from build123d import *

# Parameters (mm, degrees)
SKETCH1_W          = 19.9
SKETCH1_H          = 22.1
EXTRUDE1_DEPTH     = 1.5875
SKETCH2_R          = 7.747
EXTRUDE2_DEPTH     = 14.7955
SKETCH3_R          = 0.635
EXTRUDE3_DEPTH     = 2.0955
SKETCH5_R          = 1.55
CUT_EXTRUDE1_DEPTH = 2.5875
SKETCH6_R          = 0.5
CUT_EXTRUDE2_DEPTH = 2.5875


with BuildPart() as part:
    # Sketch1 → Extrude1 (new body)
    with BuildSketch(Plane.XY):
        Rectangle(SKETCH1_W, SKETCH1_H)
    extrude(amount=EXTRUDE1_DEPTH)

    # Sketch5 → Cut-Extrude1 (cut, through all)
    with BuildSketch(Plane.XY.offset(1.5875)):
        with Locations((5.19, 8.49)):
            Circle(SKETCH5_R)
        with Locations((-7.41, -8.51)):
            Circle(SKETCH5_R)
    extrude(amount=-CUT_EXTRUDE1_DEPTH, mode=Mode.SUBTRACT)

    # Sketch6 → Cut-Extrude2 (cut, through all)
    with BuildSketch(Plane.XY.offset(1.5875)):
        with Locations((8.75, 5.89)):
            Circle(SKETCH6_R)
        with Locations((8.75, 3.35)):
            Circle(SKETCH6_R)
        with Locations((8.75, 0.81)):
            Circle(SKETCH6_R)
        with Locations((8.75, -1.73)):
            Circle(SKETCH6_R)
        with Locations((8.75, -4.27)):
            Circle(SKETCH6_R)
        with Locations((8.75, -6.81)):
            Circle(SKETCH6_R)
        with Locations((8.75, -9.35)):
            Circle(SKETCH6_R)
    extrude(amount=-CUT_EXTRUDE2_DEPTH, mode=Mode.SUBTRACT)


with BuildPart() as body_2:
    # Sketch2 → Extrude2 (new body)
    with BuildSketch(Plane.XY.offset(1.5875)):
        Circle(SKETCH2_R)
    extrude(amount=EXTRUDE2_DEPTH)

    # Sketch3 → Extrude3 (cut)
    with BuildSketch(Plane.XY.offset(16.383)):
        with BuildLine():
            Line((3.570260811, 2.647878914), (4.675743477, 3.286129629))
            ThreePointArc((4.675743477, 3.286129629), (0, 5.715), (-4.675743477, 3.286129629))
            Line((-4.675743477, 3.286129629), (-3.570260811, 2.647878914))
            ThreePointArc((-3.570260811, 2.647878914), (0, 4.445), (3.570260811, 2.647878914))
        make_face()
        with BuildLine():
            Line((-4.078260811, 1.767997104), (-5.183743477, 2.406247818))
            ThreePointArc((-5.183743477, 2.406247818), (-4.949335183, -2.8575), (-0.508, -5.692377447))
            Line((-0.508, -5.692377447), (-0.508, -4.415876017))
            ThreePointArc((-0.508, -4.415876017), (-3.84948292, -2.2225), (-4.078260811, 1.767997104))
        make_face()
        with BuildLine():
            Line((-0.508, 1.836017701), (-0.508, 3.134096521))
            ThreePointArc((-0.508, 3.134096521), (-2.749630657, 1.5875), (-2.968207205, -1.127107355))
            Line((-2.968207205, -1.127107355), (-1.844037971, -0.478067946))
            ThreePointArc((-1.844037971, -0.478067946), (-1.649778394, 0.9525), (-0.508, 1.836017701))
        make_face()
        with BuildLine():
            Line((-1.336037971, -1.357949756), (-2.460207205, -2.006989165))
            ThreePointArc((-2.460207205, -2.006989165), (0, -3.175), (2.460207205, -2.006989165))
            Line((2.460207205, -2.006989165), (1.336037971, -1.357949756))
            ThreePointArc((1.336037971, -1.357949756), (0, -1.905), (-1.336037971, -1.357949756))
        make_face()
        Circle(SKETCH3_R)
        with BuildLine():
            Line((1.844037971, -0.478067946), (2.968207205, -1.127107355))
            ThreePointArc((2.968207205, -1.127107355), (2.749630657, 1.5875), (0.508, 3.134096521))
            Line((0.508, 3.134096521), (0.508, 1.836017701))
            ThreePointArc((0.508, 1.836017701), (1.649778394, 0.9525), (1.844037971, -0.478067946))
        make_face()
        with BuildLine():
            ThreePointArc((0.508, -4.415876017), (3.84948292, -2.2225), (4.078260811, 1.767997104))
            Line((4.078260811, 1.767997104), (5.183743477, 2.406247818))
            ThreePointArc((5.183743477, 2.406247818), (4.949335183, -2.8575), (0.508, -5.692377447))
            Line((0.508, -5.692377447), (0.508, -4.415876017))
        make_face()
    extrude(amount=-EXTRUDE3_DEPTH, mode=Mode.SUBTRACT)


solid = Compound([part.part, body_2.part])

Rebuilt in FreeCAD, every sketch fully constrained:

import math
import FreeCAD as App
import Part
import Sketcher
Q = App.Units.Quantity

doc = App.newDocument("Part")
body = doc.addObject("PartDesign::Body", "Body")

# Sketch on XY plane
sketch1 = body.newObject("Sketcher::SketchObject", "Sketch")
sketch1.AttachmentSupport = (doc.getObject("XY_Plane"), [""])
sketch1.MapMode = "FlatFace"
sketch1.addGeometry([
    Part.LineSegment(App.Vector(-9.95, 11.05, 0), App.Vector(-9.95, -11.05, 0)),
    Part.LineSegment(App.Vector(-9.95, -11.05, 0), App.Vector(9.95, -11.05, 0)),
    Part.LineSegment(App.Vector(9.95, -11.05, 0), App.Vector(9.95, 11.05, 0)),
    Part.LineSegment(App.Vector(9.95, 11.05, 0), App.Vector(-9.95, 11.05, 0)),
], False)
sketch1.addConstraint([
    Sketcher.Constraint("Coincident", 0, 2, 1, 1),
    Sketcher.Constraint("Coincident", 1, 2, 2, 1),
    Sketcher.Constraint("Coincident", 2, 2, 3, 1),
    Sketcher.Constraint("Coincident", 3, 2, 0, 1),
    Sketcher.Constraint("Vertical", 0),
    Sketcher.Constraint("Horizontal", 1),
    Sketcher.Constraint("Vertical", 2),
    Sketcher.Constraint("Horizontal", 3),
    Sketcher.Constraint("Symmetric", 0, 2, 2, 2, -1, 1),
    Sketcher.Constraint("DistanceX", 1, 1, 1, 2, 19.9),
    Sketcher.Constraint("DistanceY", 0, 2, 0, 1, 22.1),
])
pad1 = body.newObject("PartDesign::Pad", "Pad")
pad1.Profile = sketch1
pad1.Length = Q("0.0625 in")

# Sketch on XY plane
sketch2 = body.newObject("Sketcher::SketchObject", "Sketch001")
sketch2.AttachmentSupport = (doc.getObject("XY_Plane"), [""])
sketch2.MapMode = "FlatFace"
sketch2.AttachmentOffset = App.Placement(App.Vector(0, 0, 0.0625 * 25.4), App.Rotation())
sketch2.addGeometry([
    Part.Circle(App.Vector(5.19, 8.49, 0), App.Vector(0, 0, 1), 1.55),
    Part.Circle(App.Vector(-7.41, -8.51, 0), App.Vector(0, 0, 1), 1.55),
], False)
sketch2.addConstraint([
    Sketcher.Constraint("Equal", 0, 1),
    Sketcher.Constraint("Diameter", 0, 3.1),
    Sketcher.Constraint("DistanceX", -1, 1, 0, 3, 5.19),
    Sketcher.Constraint("DistanceY", -1, 1, 0, 3, 8.49),
    Sketcher.Constraint("DistanceX", 1, 3, -1, 1, 7.41),
    Sketcher.Constraint("DistanceY", 1, 3, -1, 1, 8.51),
])
pocket1 = body.newObject("PartDesign::Pocket", "Pocket")
pocket1.Profile = sketch2
pocket1.Type = "ThroughAll"

# Sketch on XY plane
sketch3 = body.newObject("Sketcher::SketchObject", "Sketch002")
sketch3.AttachmentSupport = (doc.getObject("XY_Plane"), [""])
sketch3.MapMode = "FlatFace"
sketch3.AttachmentOffset = App.Placement(App.Vector(0, 0, 0.0625 * 25.4), App.Rotation())
sketch3.addGeometry([
    Part.Circle(App.Vector(8.75, 5.89, 0), App.Vector(0, 0, 1), 0.5),  # 0
    Part.Circle(App.Vector(8.75, 3.35, 0), App.Vector(0, 0, 1), 0.5),  # 1
    Part.Circle(App.Vector(8.75, 0.81, 0), App.Vector(0, 0, 1), 0.5),  # 2
    Part.Circle(App.Vector(8.75, -1.73, 0), App.Vector(0, 0, 1), 0.5),  # 3
    Part.Circle(App.Vector(8.75, -4.27, 0), App.Vector(0, 0, 1), 0.5),  # 4
    Part.Circle(App.Vector(8.75, -6.81, 0), App.Vector(0, 0, 1), 0.5),  # 5
    Part.Circle(App.Vector(8.75, -9.35, 0), App.Vector(0, 0, 1), 0.5),  # 6
], False)
sketch3.addConstraint([
    Sketcher.Constraint("Equal", 0, 1),
    Sketcher.Constraint("Equal", 1, 2),
    Sketcher.Constraint("Equal", 2, 3),
    Sketcher.Constraint("Equal", 3, 4),
    Sketcher.Constraint("Equal", 4, 5),
    Sketcher.Constraint("Equal", 5, 6),
    Sketcher.Constraint("Vertical", 0, 3, 1, 3),
    Sketcher.Constraint("Vertical", 1, 3, 2, 3),
    Sketcher.Constraint("Vertical", 2, 3, 3, 3),
    Sketcher.Constraint("Vertical", 3, 3, 4, 3),
    Sketcher.Constraint("Vertical", 4, 3, 5, 3),
    Sketcher.Constraint("Vertical", 5, 3, 6, 3),
    Sketcher.Constraint("DistanceY", 1, 3, 0, 3, Q("0.1 in")),
    Sketcher.Constraint("DistanceY", 2, 3, 1, 3, Q("0.1 in")),
    Sketcher.Constraint("DistanceY", 3, 3, 2, 3, Q("0.1 in")),
    Sketcher.Constraint("DistanceY", 4, 3, 3, 3, Q("0.1 in")),
    Sketcher.Constraint("DistanceY", 5, 3, 4, 3, Q("0.1 in")),
    Sketcher.Constraint("DistanceY", 6, 3, 5, 3, Q("0.1 in")),
    Sketcher.Constraint("Diameter", 0, 1.0),
    Sketcher.Constraint("DistanceX", -1, 1, 0, 3, 8.75),
    Sketcher.Constraint("DistanceY", -1, 1, 0, 3, 5.89),
])
pocket2 = body.newObject("PartDesign::Pocket", "Pocket001")
pocket2.Profile = sketch3
pocket2.Type = "ThroughAll"
body2 = doc.addObject("PartDesign::Body", "Body001")

# Sketch on XY plane
sketch4 = body2.newObject("Sketcher::SketchObject", "Sketch003")
sketch4.AttachmentSupport = (doc.getObject("XY_Plane001"), [""])
sketch4.MapMode = "FlatFace"
sketch4.AttachmentOffset = App.Placement(App.Vector(0, 0, 0.0625 * 25.4), App.Rotation())
sketch4.addGeometry(Part.Circle(App.Vector(0, 0, 0), App.Vector(0, 0, 1), 7.747), False)
sketch4.addConstraint([
    Sketcher.Constraint("Coincident", 0, 3, -1, 1),
    Sketcher.Constraint("Diameter", 0, Q("0.61 in")),
])
pad2 = body2.newObject("PartDesign::Pad", "Pad001")
pad2.Profile = sketch4
pad2.Length = Q("0.5825 in")

# Sketch on XY plane
sketch5 = body2.newObject("Sketcher::SketchObject", "Sketch004")
sketch5.AttachmentSupport = (doc.getObject("XY_Plane001"), [""])
sketch5.MapMode = "FlatFace"
sketch5.AttachmentOffset = App.Placement(App.Vector(0, 0, 0.645 * 25.4), App.Rotation())
sketch5.addGeometry([
    Part.LineSegment(App.Vector(3.570261, 2.647879, 0), App.Vector(4.675743, 3.28613, 0)),  # 0
    Part.ArcOfCircle(Part.Circle(App.Vector(0, 0, 0), App.Vector(0, 0, 1), 5.715), math.radians(35.099689), math.radians(144.900311)),  # 1
    Part.LineSegment(App.Vector(-4.675743, 3.28613, 0), App.Vector(-3.570261, 2.647879, 0)),  # 2
    Part.ArcOfCircle(Part.Circle(App.Vector(0, 0, 0), App.Vector(0, 0, 1), 4.445), math.radians(36.562428), math.radians(143.437572)),  # 3
    Part.LineSegment(App.Vector(-4.078261, 1.767997, 0), App.Vector(-5.183743, 2.406248, 0)),  # 4
    Part.ArcOfCircle(Part.Circle(App.Vector(0, 0, 0), App.Vector(0, 0, 1), 5.715), math.radians(155.099689), math.radians(264.900311)),  # 5
    Part.LineSegment(App.Vector(-0.508, -5.692377, 0), App.Vector(-0.508, -4.415876, 0)),  # 6
    Part.ArcOfCircle(Part.Circle(App.Vector(0, 0, 0), App.Vector(0, 0, 1), 4.445), math.radians(156.562428), math.radians(263.437572)),  # 7
    Part.LineSegment(App.Vector(-0.508, 1.836018, 0), App.Vector(-0.508, 3.134097, 0)),  # 8
    Part.ArcOfCircle(Part.Circle(App.Vector(0, 0, 0), App.Vector(0, 0, 1), 3.175), math.radians(99.206896), math.radians(200.793104)),  # 9
    Part.LineSegment(App.Vector(-2.968207, -1.127107, 0), App.Vector(-1.844038, -0.478068, 0)),  # 10
    Part.ArcOfCircle(Part.Circle(App.Vector(0, 0, 0), App.Vector(0, 0, 1), 1.905), math.radians(105.46601), math.radians(194.53399)),  # 11
    Part.LineSegment(App.Vector(-1.336038, -1.35795, 0), App.Vector(-2.460207, -2.006989, 0)),  # 12
    Part.ArcOfCircle(Part.Circle(App.Vector(0, 0, 0), App.Vector(0, 0, 1), 3.175), math.radians(-140.793104), math.radians(-39.206896)),  # 13
    Part.LineSegment(App.Vector(2.460207, -2.006989, 0), App.Vector(1.336038, -1.35795, 0)),  # 14
    Part.ArcOfCircle(Part.Circle(App.Vector(0, 0, 0), App.Vector(0, 0, 1), 1.905), math.radians(-134.53399), math.radians(-45.46601)),  # 15
    Part.Circle(App.Vector(0, 0, 0), App.Vector(0, 0, 1), 0.635),  # 16
    Part.LineSegment(App.Vector(1.844038, -0.478068, 0), App.Vector(2.968207, -1.127107, 0)),  # 17
    Part.ArcOfCircle(Part.Circle(App.Vector(0, 0, 0), App.Vector(0, 0, 1), 3.175), math.radians(-20.793104), math.radians(80.793104)),  # 18
    Part.LineSegment(App.Vector(0.508, 3.134097, 0), App.Vector(0.508, 1.836018, 0)),  # 19
    Part.ArcOfCircle(Part.Circle(App.Vector(0, 0, 0), App.Vector(0, 0, 1), 1.905), math.radians(-14.53399), math.radians(74.53399)),  # 20
    Part.ArcOfCircle(Part.Circle(App.Vector(0, 0, 0), App.Vector(0, 0, 1), 4.445), math.radians(-83.437572), math.radians(23.437572)),  # 21
    Part.LineSegment(App.Vector(0.508, -4.415876, 0), App.Vector(0.508, -5.692377, 0)),  # 22
    Part.ArcOfCircle(Part.Circle(App.Vector(0, 0, 0), App.Vector(0, 0, 1), 5.715), math.radians(-84.900311), math.radians(24.900311)),  # 23
    Part.LineSegment(App.Vector(5.183743, 2.406248, 0), App.Vector(4.078261, 1.767997, 0)),  # 24
], False)
sketch5.addConstraint([
    Sketcher.Constraint("Coincident", 0, 2, 1, 1),
    Sketcher.Constraint("Coincident", 1, 2, 2, 1),
    Sketcher.Constraint("Coincident", 2, 2, 3, 2),
    Sketcher.Constraint("Coincident", 3, 1, 0, 1),
    Sketcher.Constraint("Coincident", 4, 2, 5, 1),
    Sketcher.Constraint("Coincident", 5, 2, 6, 1),
    Sketcher.Constraint("Coincident", 6, 2, 7, 2),
    Sketcher.Constraint("Coincident", 7, 1, 4, 1),
    Sketcher.Constraint("Coincident", 8, 2, 9, 1),
    Sketcher.Constraint("Coincident", 9, 2, 10, 1),
    Sketcher.Constraint("Coincident", 10, 2, 11, 2),
    Sketcher.Constraint("Coincident", 11, 1, 8, 1),
    Sketcher.Constraint("Coincident", 12, 2, 13, 1),
    Sketcher.Constraint("Coincident", 13, 2, 14, 1),
    Sketcher.Constraint("Coincident", 14, 2, 15, 2),
    Sketcher.Constraint("Coincident", 15, 1, 12, 1),
    Sketcher.Constraint("Coincident", 17, 2, 18, 1),
    Sketcher.Constraint("Coincident", 18, 2, 19, 1),
    Sketcher.Constraint("Coincident", 19, 2, 20, 2),
    Sketcher.Constraint("Coincident", 20, 1, 17, 1),
    Sketcher.Constraint("Coincident", 21, 1, 22, 1),
    Sketcher.Constraint("Coincident", 22, 2, 23, 1),
    Sketcher.Constraint("Coincident", 23, 2, 24, 1),
    Sketcher.Constraint("Coincident", 24, 2, 21, 2),
    Sketcher.Constraint("Vertical", 6),
    Sketcher.Constraint("Vertical", 8),
    Sketcher.Constraint("Vertical", 19),
    Sketcher.Constraint("Vertical", 22),
    Sketcher.Constraint("Coincident", 1, 3, -1, 1),
    Sketcher.Constraint("Coincident", 3, 3, -1, 1),
    Sketcher.Constraint("Coincident", 5, 3, -1, 1),
    Sketcher.Constraint("Coincident", 7, 3, -1, 1),
    Sketcher.Constraint("Coincident", 9, 3, -1, 1),
    Sketcher.Constraint("Coincident", 11, 3, -1, 1),
    Sketcher.Constraint("Coincident", 13, 3, -1, 1),
    Sketcher.Constraint("Coincident", 15, 3, -1, 1),
    Sketcher.Constraint("Coincident", 16, 3, -1, 1),
    Sketcher.Constraint("Coincident", 18, 3, -1, 1),
    Sketcher.Constraint("Coincident", 20, 3, -1, 1),
    Sketcher.Constraint("Coincident", 21, 3, -1, 1),
    Sketcher.Constraint("Coincident", 23, 3, -1, 1),
    Sketcher.Constraint("Equal", 1, 5),
    Sketcher.Constraint("Equal", 3, 7),
    Sketcher.Constraint("Equal", 9, 13),
    Sketcher.Constraint("Equal", 11, 15),
    Sketcher.Constraint("Equal", 13, 18),
    Sketcher.Constraint("Equal", 15, 20),
    Sketcher.Constraint("Equal", 7, 21),
    Sketcher.Constraint("Equal", 5, 23),
    Sketcher.Constraint("Parallel", 2, 4),
    Sketcher.Constraint("Parallel", 0, 10),
    Sketcher.Constraint("Parallel", 10, 12),
    Sketcher.Constraint("Parallel", 4, 14),
    Sketcher.Constraint("Parallel", 14, 17),
    Sketcher.Constraint("Parallel", 12, 24),
    Sketcher.Constraint("Horizontal", 0, 2, 1, 2),
    Sketcher.Constraint("Horizontal", 2, 2, 3, 1),
    Sketcher.Constraint("Horizontal", 12, 2, 13, 2),
    Sketcher.Constraint("Horizontal", 9, 2, 17, 2),
    Sketcher.Constraint("Horizontal", 8, 2, 18, 2),
    Sketcher.Constraint("Horizontal", 6, 2, 21, 1),
    Sketcher.Constraint("Horizontal", 4, 2, 23, 2),
    Sketcher.Constraint("Vertical", 6, 2, 8, 2),
    Sketcher.Constraint("Equal", 2, 4),
    Sketcher.Constraint("Equal", 10, 12),
    Sketcher.Constraint("Diameter", 16, Q("0.05 in")),
    Sketcher.Constraint("Angle", 0, Q("30 deg")),
    Sketcher.Constraint("Radius", 1, Q("0.225 in")),
    Sketcher.Constraint("Radius", 3, Q("0.175 in")),
    Sketcher.Constraint("Radius", 9, Q("0.125 in")),
    Sketcher.Constraint("Radius", 11, Q("0.075 in")),
    Sketcher.Constraint("DistanceX", 5, 2, -1, 1, Q("0.02 in")),
    Sketcher.Constraint("DistanceX", 4, 2, 1, 2, Q("0.02 in")),
    Sketcher.Constraint("DistanceX", 9, 2, 12, 2, Q("0.02 in")),
])
pocket3 = body2.newObject("PartDesign::Pocket", "Pocket002")
pocket3.Profile = sketch5
pocket3.Length = Q("0.0825 in")

doc.recompute()
